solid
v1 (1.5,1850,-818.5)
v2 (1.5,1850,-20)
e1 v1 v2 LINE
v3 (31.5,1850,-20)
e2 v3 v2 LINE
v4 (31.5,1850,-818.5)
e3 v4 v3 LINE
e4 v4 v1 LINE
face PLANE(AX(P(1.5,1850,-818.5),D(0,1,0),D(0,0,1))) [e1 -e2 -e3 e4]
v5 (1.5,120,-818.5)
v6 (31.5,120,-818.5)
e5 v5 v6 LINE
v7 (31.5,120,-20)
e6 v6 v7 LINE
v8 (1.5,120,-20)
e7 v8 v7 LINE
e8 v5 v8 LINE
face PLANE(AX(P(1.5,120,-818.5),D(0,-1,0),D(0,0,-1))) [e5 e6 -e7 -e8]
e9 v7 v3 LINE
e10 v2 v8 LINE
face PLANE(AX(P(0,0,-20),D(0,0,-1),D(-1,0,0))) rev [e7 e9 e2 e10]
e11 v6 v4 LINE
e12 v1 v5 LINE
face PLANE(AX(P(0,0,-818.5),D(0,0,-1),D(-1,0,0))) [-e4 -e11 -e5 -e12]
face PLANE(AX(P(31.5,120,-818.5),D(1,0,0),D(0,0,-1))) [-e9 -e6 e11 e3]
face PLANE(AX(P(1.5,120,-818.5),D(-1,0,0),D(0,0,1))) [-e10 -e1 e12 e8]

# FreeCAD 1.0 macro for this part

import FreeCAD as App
import Part
import Sketcher

V = App.Vector

doc = App.newDocument("Part")
body = doc.addObject("PartDesign::Body", "Body")

# Sketch on XY plane
sketch1 = body.newObject("Sketcher::SketchObject", "Sketch")
sketch1.AttachmentSupport = (doc.getObject("XY_Plane"), [""])
sketch1.MapMode = "FlatFace"
sketch1.AttachmentOffset = App.Placement(V(0, 0, -20), App.Rotation())
sketch1.addGeometry([
    Part.LineSegment(V(1.5, 1850, 0), V(1.5, 120, 0)),
    Part.LineSegment(V(1.5, 120, 0), V(31.5, 120, 0)),
    Part.LineSegment(V(31.5, 120, 0), V(31.5, 1850, 0)),
    Part.LineSegment(V(31.5, 1850, 0), V(1.5, 1850, 0)),
], False)
sketch1.addConstraint([
    Sketcher.Constraint("Coincident", 0, 2, 1, 1),
    Sketcher.Constraint("Coincident", 1, 2, 2, 1),
    Sketcher.Constraint("Coincident", 2, 2, 3, 1),
    Sketcher.Constraint("Coincident", 3, 2, 0, 1),
    Sketcher.Constraint("Vertical", 0),
    Sketcher.Constraint("Horizontal", 1),
    Sketcher.Constraint("Vertical", 2),
    Sketcher.Constraint("Horizontal", 3),
    Sketcher.Constraint("DistanceX", 1, 1, 1, 2, 30.0),
    Sketcher.Constraint("DistanceY", 0, 2, 0, 1, 1730.0),
    Sketcher.Constraint("DistanceY", -1, 1, 0, 2, 120.0),
    Sketcher.Constraint("DistanceX", -1, 1, 0, 2, 1.5),
])
pad1 = body.newObject("PartDesign::Pad", "Pad")
pad1.Profile = sketch1
pad1.Length = 798.5
pad1.Reversed = True

doc.recompute()
